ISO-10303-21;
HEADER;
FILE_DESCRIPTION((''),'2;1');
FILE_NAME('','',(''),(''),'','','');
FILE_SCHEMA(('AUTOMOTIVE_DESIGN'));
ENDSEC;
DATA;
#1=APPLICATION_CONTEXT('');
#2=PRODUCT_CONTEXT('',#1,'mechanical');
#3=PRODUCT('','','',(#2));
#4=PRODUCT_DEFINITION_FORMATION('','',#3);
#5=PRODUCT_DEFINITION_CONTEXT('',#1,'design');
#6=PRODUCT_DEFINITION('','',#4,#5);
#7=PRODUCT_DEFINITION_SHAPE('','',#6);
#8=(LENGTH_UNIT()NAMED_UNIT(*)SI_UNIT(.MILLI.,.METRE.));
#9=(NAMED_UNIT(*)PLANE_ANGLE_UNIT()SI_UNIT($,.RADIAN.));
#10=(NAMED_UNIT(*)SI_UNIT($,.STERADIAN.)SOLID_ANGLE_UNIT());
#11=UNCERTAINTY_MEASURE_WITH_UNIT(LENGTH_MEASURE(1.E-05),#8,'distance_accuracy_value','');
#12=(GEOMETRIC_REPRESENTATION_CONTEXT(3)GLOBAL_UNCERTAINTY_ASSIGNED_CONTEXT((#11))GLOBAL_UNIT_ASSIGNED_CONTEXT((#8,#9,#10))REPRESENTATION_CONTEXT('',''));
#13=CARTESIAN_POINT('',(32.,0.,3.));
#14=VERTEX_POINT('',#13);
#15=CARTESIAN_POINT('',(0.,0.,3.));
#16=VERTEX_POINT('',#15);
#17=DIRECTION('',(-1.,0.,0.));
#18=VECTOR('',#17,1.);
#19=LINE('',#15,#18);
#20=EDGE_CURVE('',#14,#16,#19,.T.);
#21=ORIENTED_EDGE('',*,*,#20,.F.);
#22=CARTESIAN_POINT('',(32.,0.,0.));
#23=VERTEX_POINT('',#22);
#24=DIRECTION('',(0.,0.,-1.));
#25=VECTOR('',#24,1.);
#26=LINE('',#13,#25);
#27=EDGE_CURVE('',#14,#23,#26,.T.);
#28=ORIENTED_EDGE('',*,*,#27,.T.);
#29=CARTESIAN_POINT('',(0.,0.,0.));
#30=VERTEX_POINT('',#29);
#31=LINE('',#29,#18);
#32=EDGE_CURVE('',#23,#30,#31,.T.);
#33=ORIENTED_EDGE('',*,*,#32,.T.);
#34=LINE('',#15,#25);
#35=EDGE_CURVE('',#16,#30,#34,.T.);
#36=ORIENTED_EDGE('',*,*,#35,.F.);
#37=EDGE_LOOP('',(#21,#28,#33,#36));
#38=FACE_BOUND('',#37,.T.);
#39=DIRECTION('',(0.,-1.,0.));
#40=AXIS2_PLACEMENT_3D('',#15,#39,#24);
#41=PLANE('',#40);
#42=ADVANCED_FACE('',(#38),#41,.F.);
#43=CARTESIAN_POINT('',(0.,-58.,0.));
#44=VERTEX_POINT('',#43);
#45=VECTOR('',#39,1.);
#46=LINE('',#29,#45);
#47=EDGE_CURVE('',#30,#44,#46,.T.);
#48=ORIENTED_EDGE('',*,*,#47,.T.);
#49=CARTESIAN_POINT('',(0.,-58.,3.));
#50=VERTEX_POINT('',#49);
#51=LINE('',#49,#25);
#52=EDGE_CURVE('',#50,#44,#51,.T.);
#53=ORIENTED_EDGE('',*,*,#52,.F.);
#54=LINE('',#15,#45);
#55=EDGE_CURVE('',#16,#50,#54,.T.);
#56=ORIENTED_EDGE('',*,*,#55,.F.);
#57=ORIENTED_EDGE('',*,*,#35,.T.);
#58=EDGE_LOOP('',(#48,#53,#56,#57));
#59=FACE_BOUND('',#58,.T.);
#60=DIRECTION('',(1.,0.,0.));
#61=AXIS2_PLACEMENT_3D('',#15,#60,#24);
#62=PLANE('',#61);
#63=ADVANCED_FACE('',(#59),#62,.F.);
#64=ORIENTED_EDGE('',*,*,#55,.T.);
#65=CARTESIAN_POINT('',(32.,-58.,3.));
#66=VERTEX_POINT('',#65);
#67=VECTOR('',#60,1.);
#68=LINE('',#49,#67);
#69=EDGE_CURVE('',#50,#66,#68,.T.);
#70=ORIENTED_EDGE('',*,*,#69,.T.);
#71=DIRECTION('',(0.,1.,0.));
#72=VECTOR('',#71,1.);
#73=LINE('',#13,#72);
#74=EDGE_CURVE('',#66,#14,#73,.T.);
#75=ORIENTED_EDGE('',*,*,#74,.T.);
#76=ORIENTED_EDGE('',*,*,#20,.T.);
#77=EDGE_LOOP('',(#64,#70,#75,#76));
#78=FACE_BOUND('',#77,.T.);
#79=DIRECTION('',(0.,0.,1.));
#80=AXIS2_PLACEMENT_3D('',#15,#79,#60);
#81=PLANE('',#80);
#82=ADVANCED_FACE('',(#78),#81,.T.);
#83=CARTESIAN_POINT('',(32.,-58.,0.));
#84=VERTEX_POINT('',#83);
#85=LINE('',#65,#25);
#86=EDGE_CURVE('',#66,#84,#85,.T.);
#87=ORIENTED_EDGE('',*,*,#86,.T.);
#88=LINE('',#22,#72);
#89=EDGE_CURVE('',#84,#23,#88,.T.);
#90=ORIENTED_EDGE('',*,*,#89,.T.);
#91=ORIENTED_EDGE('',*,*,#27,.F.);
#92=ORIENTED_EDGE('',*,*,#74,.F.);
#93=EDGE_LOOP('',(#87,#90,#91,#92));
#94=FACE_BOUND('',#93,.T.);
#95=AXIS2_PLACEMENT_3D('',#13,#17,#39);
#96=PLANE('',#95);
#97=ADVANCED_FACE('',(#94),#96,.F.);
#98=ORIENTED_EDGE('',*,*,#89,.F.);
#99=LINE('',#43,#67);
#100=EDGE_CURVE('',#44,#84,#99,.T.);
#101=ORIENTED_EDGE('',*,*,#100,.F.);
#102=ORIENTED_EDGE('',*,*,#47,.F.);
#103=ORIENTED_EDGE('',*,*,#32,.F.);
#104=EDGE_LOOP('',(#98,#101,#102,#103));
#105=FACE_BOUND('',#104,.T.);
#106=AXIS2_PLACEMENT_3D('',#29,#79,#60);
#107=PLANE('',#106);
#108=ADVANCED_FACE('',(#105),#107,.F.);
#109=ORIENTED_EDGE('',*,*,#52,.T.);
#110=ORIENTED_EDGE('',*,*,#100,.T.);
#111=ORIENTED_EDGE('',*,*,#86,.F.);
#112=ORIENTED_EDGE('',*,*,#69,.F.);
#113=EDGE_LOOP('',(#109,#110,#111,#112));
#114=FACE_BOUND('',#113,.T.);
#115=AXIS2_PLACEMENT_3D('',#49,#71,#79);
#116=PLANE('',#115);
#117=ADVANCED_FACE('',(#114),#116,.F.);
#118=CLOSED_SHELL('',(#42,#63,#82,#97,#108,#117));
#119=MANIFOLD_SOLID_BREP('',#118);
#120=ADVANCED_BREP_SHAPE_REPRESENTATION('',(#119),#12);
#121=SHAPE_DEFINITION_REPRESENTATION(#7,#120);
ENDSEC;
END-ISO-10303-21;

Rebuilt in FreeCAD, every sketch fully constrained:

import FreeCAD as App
import Part
import Sketcher
Q = App.Units.Quantity


def add_polygon(sketch, points):
    """Adds a closed chain of lines whose ends are joined by coincident constraints."""
    first, n = sketch.GeometryCount, len(points)
    for a, b in zip(points, points[1:] + points[:1]):
        sketch.addGeometry(Part.LineSegment(App.Vector(*a, 0), App.Vector(*b, 0)), False)
    for i in range(n):
        sketch.addConstraint(Sketcher.Constraint("Coincident", first + i, 2, first + (i + 1) % n, 1))

doc = App.newDocument("Part")
body = doc.addObject("PartDesign::Body", "Body")

sketch1 = body.newObject("Sketcher::SketchObject", "Sketch")
sketch1.AttachmentSupport = (doc.getObject("XY_Plane"), [""])
sketch1.MapMode = "FlatFace"
add_polygon(sketch1, [(0, 0), (0, -58), (32, -58), (32, 0)])
sketch1.addConstraint([
    Sketcher.Constraint("Vertical", 0),
    Sketcher.Constraint("Horizontal", 1),
    Sketcher.Constraint("Vertical", 2),
    Sketcher.Constraint("Horizontal", 3),
    Sketcher.Constraint("Coincident", 3, 2, -1, 1),
    Sketcher.Constraint("DistanceX", 1, 1, 1, 2, Q("32 mm")),
    Sketcher.Constraint("DistanceY", 0, 2, 0, 1, Q("58 mm")),
])
pad1 = body.newObject("PartDesign::Pad", "Pad")
pad1.Profile = sketch1
pad1.Length = 3

doc.recompute()
